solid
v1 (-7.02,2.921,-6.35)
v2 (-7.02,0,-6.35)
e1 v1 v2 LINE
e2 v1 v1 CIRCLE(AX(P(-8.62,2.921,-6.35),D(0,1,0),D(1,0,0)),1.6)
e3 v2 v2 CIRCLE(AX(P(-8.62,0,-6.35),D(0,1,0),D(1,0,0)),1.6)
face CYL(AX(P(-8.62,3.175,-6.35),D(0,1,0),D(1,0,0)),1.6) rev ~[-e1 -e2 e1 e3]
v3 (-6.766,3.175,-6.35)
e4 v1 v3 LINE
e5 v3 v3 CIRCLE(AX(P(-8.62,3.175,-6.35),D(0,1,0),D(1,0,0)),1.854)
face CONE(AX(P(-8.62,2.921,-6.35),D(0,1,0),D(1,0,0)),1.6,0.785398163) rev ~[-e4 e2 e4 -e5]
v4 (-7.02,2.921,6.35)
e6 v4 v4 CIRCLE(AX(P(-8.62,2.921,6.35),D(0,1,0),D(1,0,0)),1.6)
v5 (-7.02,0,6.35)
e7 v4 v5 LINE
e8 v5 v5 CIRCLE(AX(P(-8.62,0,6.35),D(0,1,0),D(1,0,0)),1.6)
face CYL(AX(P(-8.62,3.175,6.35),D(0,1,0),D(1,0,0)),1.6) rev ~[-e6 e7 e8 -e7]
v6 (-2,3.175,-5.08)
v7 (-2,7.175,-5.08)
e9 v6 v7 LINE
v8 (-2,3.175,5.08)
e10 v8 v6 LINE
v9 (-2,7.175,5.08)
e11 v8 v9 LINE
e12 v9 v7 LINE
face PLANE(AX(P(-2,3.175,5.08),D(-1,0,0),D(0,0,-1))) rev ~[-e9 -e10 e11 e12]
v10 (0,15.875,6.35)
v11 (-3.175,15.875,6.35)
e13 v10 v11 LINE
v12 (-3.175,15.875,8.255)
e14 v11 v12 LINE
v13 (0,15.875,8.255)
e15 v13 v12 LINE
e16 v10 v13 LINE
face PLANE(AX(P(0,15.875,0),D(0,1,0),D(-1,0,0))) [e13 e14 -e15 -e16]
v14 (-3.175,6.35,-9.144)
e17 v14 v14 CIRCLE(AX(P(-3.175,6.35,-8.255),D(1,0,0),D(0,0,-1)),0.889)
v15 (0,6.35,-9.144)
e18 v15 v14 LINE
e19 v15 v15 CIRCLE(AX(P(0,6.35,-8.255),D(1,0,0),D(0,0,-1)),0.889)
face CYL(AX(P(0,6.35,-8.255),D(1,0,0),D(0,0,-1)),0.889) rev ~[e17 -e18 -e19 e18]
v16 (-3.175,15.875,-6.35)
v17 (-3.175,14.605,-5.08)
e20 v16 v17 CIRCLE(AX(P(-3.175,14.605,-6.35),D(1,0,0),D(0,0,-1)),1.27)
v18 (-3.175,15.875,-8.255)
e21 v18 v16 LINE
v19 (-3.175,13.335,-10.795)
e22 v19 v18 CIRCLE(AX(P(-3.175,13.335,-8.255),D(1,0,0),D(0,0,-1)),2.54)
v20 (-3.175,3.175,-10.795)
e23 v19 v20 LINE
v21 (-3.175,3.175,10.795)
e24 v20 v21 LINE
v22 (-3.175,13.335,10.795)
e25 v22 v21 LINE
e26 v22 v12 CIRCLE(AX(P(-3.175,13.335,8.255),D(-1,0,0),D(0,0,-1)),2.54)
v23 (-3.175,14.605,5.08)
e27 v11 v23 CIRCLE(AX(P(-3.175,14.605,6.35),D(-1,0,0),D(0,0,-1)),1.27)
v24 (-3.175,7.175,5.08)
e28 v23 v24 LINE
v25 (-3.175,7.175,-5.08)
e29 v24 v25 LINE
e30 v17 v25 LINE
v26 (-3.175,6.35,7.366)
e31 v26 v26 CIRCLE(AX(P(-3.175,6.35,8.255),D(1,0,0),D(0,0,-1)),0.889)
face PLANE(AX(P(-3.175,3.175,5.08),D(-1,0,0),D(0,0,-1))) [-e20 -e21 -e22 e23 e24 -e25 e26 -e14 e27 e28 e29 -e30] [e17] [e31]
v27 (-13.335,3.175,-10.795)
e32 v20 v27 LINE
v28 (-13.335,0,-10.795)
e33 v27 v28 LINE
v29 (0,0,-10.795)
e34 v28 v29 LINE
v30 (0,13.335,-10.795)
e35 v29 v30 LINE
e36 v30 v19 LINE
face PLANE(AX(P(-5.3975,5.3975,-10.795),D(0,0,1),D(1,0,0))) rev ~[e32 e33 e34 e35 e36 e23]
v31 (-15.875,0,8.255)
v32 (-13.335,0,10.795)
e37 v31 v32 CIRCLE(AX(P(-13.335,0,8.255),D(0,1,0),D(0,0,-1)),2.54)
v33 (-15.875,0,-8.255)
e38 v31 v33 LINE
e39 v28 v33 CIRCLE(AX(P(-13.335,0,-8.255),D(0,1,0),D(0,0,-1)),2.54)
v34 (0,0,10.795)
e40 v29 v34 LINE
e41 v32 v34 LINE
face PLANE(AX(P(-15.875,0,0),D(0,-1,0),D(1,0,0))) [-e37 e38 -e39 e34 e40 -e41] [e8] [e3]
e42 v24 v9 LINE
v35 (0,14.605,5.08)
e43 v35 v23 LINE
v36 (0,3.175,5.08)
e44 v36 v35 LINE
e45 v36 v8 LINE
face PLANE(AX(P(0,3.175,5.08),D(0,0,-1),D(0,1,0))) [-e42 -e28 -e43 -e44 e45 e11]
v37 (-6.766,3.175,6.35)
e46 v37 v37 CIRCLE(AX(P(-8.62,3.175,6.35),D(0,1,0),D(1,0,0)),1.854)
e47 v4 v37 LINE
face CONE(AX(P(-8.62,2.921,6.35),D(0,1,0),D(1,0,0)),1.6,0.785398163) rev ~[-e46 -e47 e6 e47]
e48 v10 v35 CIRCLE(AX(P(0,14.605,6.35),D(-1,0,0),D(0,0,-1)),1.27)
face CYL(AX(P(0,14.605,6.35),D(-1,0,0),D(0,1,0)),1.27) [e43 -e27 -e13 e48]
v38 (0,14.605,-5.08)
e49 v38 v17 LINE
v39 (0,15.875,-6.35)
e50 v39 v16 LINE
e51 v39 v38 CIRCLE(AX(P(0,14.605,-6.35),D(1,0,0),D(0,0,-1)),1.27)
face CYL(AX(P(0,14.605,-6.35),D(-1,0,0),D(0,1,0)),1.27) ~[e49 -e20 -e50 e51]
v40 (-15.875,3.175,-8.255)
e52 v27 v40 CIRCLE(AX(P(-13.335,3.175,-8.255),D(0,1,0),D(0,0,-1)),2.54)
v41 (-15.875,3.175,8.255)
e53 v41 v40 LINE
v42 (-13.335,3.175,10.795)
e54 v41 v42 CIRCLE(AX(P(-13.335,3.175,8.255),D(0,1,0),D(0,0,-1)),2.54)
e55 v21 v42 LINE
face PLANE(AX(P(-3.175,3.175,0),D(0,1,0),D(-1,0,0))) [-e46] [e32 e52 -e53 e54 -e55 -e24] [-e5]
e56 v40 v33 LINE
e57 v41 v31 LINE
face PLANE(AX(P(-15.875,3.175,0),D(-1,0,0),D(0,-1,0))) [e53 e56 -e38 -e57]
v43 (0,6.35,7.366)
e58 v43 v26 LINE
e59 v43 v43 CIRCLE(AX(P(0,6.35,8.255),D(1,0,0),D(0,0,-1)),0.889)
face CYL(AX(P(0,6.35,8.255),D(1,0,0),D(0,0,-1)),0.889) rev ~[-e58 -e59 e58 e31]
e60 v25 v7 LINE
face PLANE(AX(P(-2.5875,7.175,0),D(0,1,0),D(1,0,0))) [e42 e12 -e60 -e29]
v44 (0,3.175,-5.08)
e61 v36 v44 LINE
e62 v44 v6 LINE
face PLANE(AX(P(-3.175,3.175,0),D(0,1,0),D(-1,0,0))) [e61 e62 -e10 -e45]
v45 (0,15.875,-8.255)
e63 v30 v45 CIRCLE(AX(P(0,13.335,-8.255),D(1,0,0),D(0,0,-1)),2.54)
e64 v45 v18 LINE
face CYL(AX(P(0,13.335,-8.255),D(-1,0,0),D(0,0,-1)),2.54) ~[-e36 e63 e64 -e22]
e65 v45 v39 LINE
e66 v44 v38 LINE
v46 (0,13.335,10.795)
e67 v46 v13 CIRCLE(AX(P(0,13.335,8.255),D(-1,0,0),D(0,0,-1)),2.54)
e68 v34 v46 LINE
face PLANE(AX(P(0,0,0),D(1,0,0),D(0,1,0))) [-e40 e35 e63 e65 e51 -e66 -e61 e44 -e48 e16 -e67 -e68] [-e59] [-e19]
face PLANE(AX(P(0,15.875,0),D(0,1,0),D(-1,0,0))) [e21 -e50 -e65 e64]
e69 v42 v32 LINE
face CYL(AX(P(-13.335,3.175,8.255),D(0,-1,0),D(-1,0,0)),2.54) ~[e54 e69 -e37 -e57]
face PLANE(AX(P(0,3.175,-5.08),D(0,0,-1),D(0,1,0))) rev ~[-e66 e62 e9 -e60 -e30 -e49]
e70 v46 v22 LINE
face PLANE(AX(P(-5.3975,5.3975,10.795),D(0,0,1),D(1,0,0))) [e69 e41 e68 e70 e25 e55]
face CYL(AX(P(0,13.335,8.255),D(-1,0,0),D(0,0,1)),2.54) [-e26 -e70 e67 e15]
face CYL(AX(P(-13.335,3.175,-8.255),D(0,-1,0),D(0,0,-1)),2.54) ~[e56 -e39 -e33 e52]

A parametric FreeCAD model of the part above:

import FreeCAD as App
import Part
import Sketcher
Q = App.Units.Quantity


def edges_at(feature, points):
    """Names of the edges that pass closest to the given points."""
    edges = feature.Shape.Edges
    near = lambda p: min(range(len(edges)), key=lambda i: edges[i].distToShape(Part.Vertex(*p))[0])
    return sorted({f"Edge{near(p) + 1}" for p in points})


def add_polygon(sketch, points):
    """Adds a closed chain of lines whose ends are joined by coincident constraints."""
    first, n = sketch.GeometryCount, len(points)
    for a, b in zip(points, points[1:] + points[:1]):
        sketch.addGeometry(Part.LineSegment(App.Vector(*a, 0), App.Vector(*b, 0)), False)
    for i in range(n):
        sketch.addConstraint(Sketcher.Constraint("Coincident", first + i, 2, first + (i + 1) % n, 1))

doc = App.newDocument("Part")
body = doc.addObject("PartDesign::Body", "Body")

# Sketch on XY plane
sketch1 = body.newObject("Sketcher::SketchObject", "Sketch")
sketch1.AttachmentSupport = (doc.getObject("XY_Plane"), [""])
sketch1.MapMode = "FlatFace"
add_polygon(sketch1, [(-15.9, 0), (0, 0), (0, 15.9), (-3.2, 15.9), (-3.2, 3.2), (-15.9, 3.2)])  # lines 0-5
sketch1.addConstraint([
    Sketcher.Constraint("Horizontal", 0),
    Sketcher.Constraint("Vertical", 1),
    Sketcher.Constraint("Horizontal", 2),
    Sketcher.Constraint("Vertical", 3),
    Sketcher.Constraint("Horizontal", 4),
    Sketcher.Constraint("Vertical", 5),
    Sketcher.Constraint("Coincident", 0, 2, -1, 1),
    Sketcher.Constraint("Equal", 0, 1),
    Sketcher.Constraint("Equal", 4, 3),
    Sketcher.Constraint("DistanceX", 4, 2, 4, 1, Q("0.5 in")),
    Sketcher.Constraint("DistanceX", 0, 1, 0, 2, Q("0.625 in")),
])
pad1 = body.newObject("PartDesign::Pad", "Pad")
pad1.Profile = sketch1
pad1.Length = Q("0.85 in")
pad1.Midplane = True

# Sketch on YZ plane
sketch2 = body.newObject("Sketcher::SketchObject", "Sketch001")
sketch2.AttachmentSupport = (doc.getObject("YZ_Plane"), [""])
sketch2.MapMode = "FlatFace"
sketch2.addGeometry(Part.Circle(App.Vector(6.3, 8.3, 0), App.Vector(0, 0, 1), 0.9), False)  # 0
sketch2.addGeometry(Part.Circle(App.Vector(6.3, -8.3, 0), App.Vector(0, 0, 1), 0.9), False)  # 1
add_polygon(sketch2, [(15.9, 5.1), (3.2, 5.1), (3.2, -5.1), (15.9, -5.1)])  # lines 2-5
sketch2.addConstraint([
    Sketcher.Constraint("Horizontal", 2),
    Sketcher.Constraint("Vertical", 3),
    Sketcher.Constraint("Horizontal", 4),
    Sketcher.Constraint("Vertical", 5),
    Sketcher.Constraint("Equal", 0, 1),
    Sketcher.Constraint("Symmetric", 0, 3, 1, 3, -1),
    Sketcher.Constraint("Diameter", 0, Q("0.07 in")),
    Sketcher.Constraint("DistanceX", 2, 2, 2, 1, Q("0.5 in")),
    Sketcher.Constraint("DistanceY", 3, 2, 3, 1, Q("0.4 in")),
    Sketcher.Constraint("DistanceY", -1, 1, 2, 2, Q("0.2 in")),
    Sketcher.Constraint("DistanceX", -1, 1, 0, 3, Q("0.25 in")),
    Sketcher.Constraint("DistanceY", 1, 3, 0, 3, Q("0.65 in")),
    Sketcher.Constraint("DistanceX", -1, 1, 2, 2, Q("0.125 in")),
])
pocket1 = body.newObject("PartDesign::Pocket", "Pocket")
pocket1.Profile = sketch2
pocket1.Type = "ThroughAll"

# Sketch on XZ plane
sketch3 = body.newObject("Sketcher::SketchObject", "Sketch002")
sketch3.AttachmentSupport = (doc.getObject("XZ_Plane"), [""])
sketch3.MapMode = "FlatFace"
sketch3.AttachmentOffset = App.Placement(App.Vector(0, 0, -0.125 * 25.4), App.Rotation())
sketch3.addGeometry([
    Part.Circle(App.Vector(-8.6, -6.3, 0), App.Vector(0, 0, 1), 1.6),
    Part.Circle(App.Vector(-8.6, 6.3, 0), App.Vector(0, 0, 1), 1.6),
], False)
sketch3.addConstraint([
    Sketcher.Constraint("Equal", 0, 1),
    Sketcher.Constraint("Symmetric", 0, 3, 1, 3, -1),
    Sketcher.Constraint("DistanceY", 0, 3, 1, 3, Q("0.5 in")),
    Sketcher.Constraint("Diameter", 0, Q("3.2 mm")),
    Sketcher.Constraint("DistanceX", 0, 3, -1, 1, Q("8.62 mm")),
])
pocket2 = body.newObject("PartDesign::Pocket", "Pocket001")
pocket2.Profile = sketch3
pocket2.Type = "ThroughAll"
pocket2.Reversed = True

# Sketch on XZ plane
sketch4 = body.newObject("Sketcher::SketchObject", "Sketch003")
sketch4.AttachmentSupport = (doc.getObject("XZ_Plane"), [""])
sketch4.MapMode = "FlatFace"
sketch4.AttachmentOffset = App.Placement(App.Vector(0, 0, -0.125 * 25.4), App.Rotation())
add_polygon(sketch4, [(-3.2, -5.1), (-3.2, 5.1), (-2, 5.1), (-2, -5.1)])  # lines 0-3
sketch4.addConstraint([
    Sketcher.Constraint("Vertical", 0),
    Sketcher.Constraint("Horizontal", 1),
    Sketcher.Constraint("Vertical", 2),
    Sketcher.Constraint("Horizontal", 3),
    Sketcher.Constraint("DistanceY", 0, 1, 0, 2, Q("0.4 in")),
    Sketcher.Constraint("DistanceY", -1, 1, 0, 2, Q("0.2 in")),
    Sketcher.Constraint("DistanceX", 0, 2, -1, 1, Q("0.125 in")),
    Sketcher.Constraint("DistanceX", 1, 1, 1, 2, Q("1.175 mm")),
])
pad2 = body.newObject("PartDesign::Pad", "Pad001")
pad2.Profile = sketch4
pad2.Length = 4
pad2.Reversed = True
doc.recompute()

chamfer = body.newObject("PartDesign::Chamfer", "Chamfer")
chamfer.Base = (pad2, edges_at(pad2, [(-10.22, 3.175, -6.35), (-10.22, 3.175, 6.35)]))
chamfer.Size = Q("0.01 in")
doc.recompute()

fillet = body.newObject("PartDesign::Fillet", "Fillet")
fillet.Base = (chamfer, edges_at(chamfer, [
    (-1.587, 15.875, 10.795),
    (-15.875, 1.587, 10.795),
    (-1.587, 15.875, -10.795),
    (-15.875, 1.587, -10.795),
]))
fillet.Radius = Q("0.1 in")
doc.recompute()

fillet2 = body.newObject("PartDesign::Fillet", "Fillet001")
fillet2.Base = (fillet, edges_at(fillet, [(-1.587, 15.875, 5.08), (-1.587, 15.875, -5.08)]))
fillet2.Radius = Q("0.05 in")

doc.recompute()
